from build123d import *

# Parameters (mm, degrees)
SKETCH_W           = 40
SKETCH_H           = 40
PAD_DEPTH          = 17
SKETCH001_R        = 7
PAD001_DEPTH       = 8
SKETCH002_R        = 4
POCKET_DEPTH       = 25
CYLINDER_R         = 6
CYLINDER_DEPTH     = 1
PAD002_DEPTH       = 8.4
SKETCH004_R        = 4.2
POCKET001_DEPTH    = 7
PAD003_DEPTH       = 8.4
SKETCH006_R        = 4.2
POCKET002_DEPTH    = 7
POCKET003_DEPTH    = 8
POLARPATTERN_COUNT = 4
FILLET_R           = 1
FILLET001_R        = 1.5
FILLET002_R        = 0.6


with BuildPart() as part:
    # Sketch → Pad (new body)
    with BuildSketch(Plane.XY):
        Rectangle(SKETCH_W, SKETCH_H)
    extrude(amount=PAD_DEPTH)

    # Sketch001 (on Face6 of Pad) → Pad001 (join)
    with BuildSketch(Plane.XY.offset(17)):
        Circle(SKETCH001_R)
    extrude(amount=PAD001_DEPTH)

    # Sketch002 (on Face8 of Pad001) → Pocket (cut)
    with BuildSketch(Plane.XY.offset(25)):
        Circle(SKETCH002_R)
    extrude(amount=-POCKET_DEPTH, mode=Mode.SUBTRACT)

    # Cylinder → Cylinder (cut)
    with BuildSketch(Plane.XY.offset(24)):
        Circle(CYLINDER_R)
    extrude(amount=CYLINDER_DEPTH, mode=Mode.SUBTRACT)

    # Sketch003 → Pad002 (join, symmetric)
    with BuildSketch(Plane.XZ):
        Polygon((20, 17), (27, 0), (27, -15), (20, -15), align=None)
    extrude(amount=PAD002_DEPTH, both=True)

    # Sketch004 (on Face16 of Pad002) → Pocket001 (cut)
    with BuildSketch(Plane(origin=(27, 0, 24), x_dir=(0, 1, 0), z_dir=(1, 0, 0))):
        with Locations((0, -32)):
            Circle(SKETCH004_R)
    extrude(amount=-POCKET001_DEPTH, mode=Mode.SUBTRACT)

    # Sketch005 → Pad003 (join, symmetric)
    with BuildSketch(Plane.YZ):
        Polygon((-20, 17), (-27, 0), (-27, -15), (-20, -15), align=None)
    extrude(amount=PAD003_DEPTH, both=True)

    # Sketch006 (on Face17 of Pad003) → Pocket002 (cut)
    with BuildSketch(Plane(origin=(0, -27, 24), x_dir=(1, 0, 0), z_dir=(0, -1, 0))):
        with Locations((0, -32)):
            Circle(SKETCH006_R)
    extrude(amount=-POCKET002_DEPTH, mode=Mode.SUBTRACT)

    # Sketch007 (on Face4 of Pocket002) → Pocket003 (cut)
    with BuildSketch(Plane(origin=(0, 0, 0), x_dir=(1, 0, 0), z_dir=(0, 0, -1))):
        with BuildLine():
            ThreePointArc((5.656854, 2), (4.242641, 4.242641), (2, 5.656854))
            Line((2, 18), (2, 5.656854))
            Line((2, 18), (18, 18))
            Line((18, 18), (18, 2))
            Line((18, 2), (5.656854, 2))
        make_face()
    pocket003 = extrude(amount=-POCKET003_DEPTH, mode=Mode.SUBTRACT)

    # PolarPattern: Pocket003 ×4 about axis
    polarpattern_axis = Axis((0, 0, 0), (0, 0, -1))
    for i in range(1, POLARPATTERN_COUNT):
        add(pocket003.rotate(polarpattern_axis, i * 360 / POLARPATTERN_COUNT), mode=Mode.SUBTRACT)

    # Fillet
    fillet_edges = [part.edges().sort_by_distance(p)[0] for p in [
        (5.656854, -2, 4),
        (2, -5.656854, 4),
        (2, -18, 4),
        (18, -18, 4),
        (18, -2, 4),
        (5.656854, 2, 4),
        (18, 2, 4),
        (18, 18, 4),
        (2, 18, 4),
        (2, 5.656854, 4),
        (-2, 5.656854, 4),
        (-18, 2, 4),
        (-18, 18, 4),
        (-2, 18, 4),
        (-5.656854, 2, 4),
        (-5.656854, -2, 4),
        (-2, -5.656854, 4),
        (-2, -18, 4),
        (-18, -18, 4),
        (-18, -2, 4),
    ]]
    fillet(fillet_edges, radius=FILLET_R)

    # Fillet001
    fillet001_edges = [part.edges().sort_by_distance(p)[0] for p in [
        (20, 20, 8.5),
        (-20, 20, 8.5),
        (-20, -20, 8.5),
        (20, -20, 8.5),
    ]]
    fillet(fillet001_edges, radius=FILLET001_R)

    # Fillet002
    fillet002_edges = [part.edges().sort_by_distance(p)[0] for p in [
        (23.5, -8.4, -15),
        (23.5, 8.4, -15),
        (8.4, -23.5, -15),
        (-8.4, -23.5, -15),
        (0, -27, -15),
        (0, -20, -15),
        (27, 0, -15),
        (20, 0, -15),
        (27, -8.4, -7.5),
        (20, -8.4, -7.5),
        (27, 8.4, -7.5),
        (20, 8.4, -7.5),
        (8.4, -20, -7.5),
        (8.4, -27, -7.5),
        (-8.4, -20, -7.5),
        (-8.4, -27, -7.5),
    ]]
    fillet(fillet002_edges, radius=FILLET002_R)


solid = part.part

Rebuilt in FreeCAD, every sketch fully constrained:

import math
import FreeCAD as App
import Part
import Sketcher
from FreeCAD import Vector


def edges_at(feature, points):
    """Names of the edges that pass closest to the given points."""
    edges = feature.Shape.Edges
    near = lambda p: min(range(len(edges)), key=lambda i: edges[i].distToShape(Part.Vertex(*p))[0])
    return sorted({f"Edge{near(p) + 1}" for p in points})

doc = App.newDocument("Part")
body = doc.addObject("PartDesign::Body", "Body")

sketch1 = body.newObject("Sketcher::SketchObject", "Sketch")
sketch1.AttachmentSupport = (doc.getObject("XY_Plane"), [""])
sketch1.MapMode = "FlatFace"
sketch1.addGeometry([
    Part.LineSegment(Vector(-20, 20, 0), Vector(-20, -20, 0)),
    Part.LineSegment(Vector(-20, -20, 0), Vector(20, -20, 0)),
    Part.LineSegment(Vector(20, -20, 0), Vector(20, 20, 0)),
    Part.LineSegment(Vector(20, 20, 0), Vector(-20, 20, 0)),
], False)
sketch1.addConstraint([
    Sketcher.Constraint("Coincident", 0, 2, 1, 1),
    Sketcher.Constraint("Coincident", 1, 2, 2, 1),
    Sketcher.Constraint("Coincident", 2, 2, 3, 1),
    Sketcher.Constraint("Coincident", 3, 2, 0, 1),
    Sketcher.Constraint("Vertical", 0),
    Sketcher.Constraint("Horizontal", 1),
    Sketcher.Constraint("Vertical", 2),
    Sketcher.Constraint("Horizontal", 3),
    Sketcher.Constraint("Symmetric", 0, 2, 2, 2, -1, 1),
    Sketcher.Constraint("Equal", 3, 0),
    Sketcher.Constraint("DistanceX", 1, 1, 1, 2, 40.0),
])
pad1 = body.newObject("PartDesign::Pad", "Pad")
pad1.Profile = sketch1
pad1.Length = 17

sketch2 = body.newObject("Sketcher::SketchObject", "Sketch001")
sketch2.AttachmentSupport = (doc.getObject("XY_Plane"), [""])
sketch2.MapMode = "FlatFace"
sketch2.AttachmentOffset = App.Placement(Vector(0, 0, 17), App.Rotation())
sketch2.addGeometry(Part.Circle(Vector(0, 0, 0), Vector(0, 0, 1), 7), False)
sketch2.addConstraint([
    Sketcher.Constraint("Coincident", 0, 3, -1, 1),
    Sketcher.Constraint("Diameter", 0, 14.0),
])
pad2 = body.newObject("PartDesign::Pad", "Pad001")
pad2.Profile = sketch2
pad2.Length = 8

sketch3 = body.newObject("Sketcher::SketchObject", "Sketch002")
sketch3.AttachmentSupport = (doc.getObject("XY_Plane"), [""])
sketch3.MapMode = "FlatFace"
sketch3.AttachmentOffset = App.Placement(Vector(0, 0, 25), App.Rotation())
sketch3.addGeometry(Part.Circle(Vector(0, 0, 0), Vector(0, 0, 1), 4), False)
sketch3.addConstraint([
    Sketcher.Constraint("Coincident", 0, 3, -1, 1),
    Sketcher.Constraint("Diameter", 0, 8.0),
])
pocket1 = body.newObject("PartDesign::Pocket", "Pocket")
pocket1.Profile = sketch3
pocket1.Length = 25

sketch4 = body.newObject("Sketcher::SketchObject", "Sketch003")
sketch4.AttachmentSupport = (doc.getObject("XY_Plane"), [""])
sketch4.MapMode = "FlatFace"
sketch4.AttachmentOffset = App.Placement(Vector(0, 0, 24), App.Rotation())
sketch4.addGeometry(Part.Circle(Vector(0, 0, 0), Vector(0, 0, 1), 6), False)
sketch4.addConstraint([
    Sketcher.Constraint("Coincident", 0, 3, -1, 1),
    Sketcher.Constraint("Diameter", 0, 12.0),
])
pocket2 = body.newObject("PartDesign::Pocket", "Pocket001")
pocket2.Profile = sketch4
pocket2.Length = 1
pocket2.Reversed = True

sketch5 = body.newObject("Sketcher::SketchObject", "Sketch004")
sketch5.AttachmentSupport = (doc.getObject("XZ_Plane"), [""])
sketch5.MapMode = "FlatFace"
sketch5.addGeometry([
    Part.LineSegment(Vector(27, 0, 0), Vector(20, 17, 0)),
    Part.LineSegment(Vector(20, 17, 0), Vector(20, -15, 0)),
    Part.LineSegment(Vector(20, -15, 0), Vector(27, -15, 0)),
    Part.LineSegment(Vector(27, -15, 0), Vector(27, 0, 0)),
], False)
sketch5.addConstraint([
    Sketcher.Constraint("Coincident", 0, 2, 1, 1),
    Sketcher.Constraint("Coincident", 1, 2, 2, 1),
    Sketcher.Constraint("Coincident", 2, 2, 3, 1),
    Sketcher.Constraint("Coincident", 3, 2, 0, 1),
    Sketcher.Constraint("Vertical", 1),
    Sketcher.Constraint("Horizontal", 2),
    Sketcher.Constraint("Vertical", 3),
    Sketcher.Constraint("PointOnObject", 3, 2, -1),
    Sketcher.Constraint("DistanceX", 2, 1, 2, 2, 7.0),
    Sketcher.Constraint("DistanceY", 1, 2, 1, 1, 32.0),
    Sketcher.Constraint("DistanceY", 3, 1, 3, 2, 15.0),
    Sketcher.Constraint("DistanceX", -1, 1, 0, 2, 20.0),
])
pad3 = body.newObject("PartDesign::Pad", "Pad002")
pad3.Profile = sketch5
pad3.Length = 16.8
pad3.Midplane = True

sketch6 = body.newObject("Sketcher::SketchObject", "Sketch005")
sketch6.AttachmentSupport = (doc.getObject("YZ_Plane"), [""])
sketch6.MapMode = "FlatFace"
sketch6.AttachmentOffset = App.Placement(Vector(0, 0, 27), App.Rotation())
sketch6.addGeometry(Part.Circle(Vector(0, -8, 0), Vector(0, 0, 1), 4.2), False)
sketch6.addConstraint([
    Sketcher.Constraint("PointOnObject", 0, 3, -2),
    Sketcher.Constraint("Diameter", 0, 8.4),
    Sketcher.Constraint("DistanceY", 0, 3, -1, 1, 8.0),
])
pocket3 = body.newObject("PartDesign::Pocket", "Pocket002")
pocket3.Profile = sketch6
pocket3.Length = 7

sketch7 = body.newObject("Sketcher::SketchObject", "Sketch006")
sketch7.AttachmentSupport = (doc.getObject("YZ_Plane"), [""])
sketch7.MapMode = "FlatFace"
sketch7.addGeometry([
    Part.LineSegment(Vector(-20, 17, 0), Vector(-27, 0, 0)),
    Part.LineSegment(Vector(-27, 0, 0), Vector(-27, -15, 0)),
    Part.LineSegment(Vector(-27, -15, 0), Vector(-20, -15, 0)),
    Part.LineSegment(Vector(-20, -15, 0), Vector(-20, 17, 0)),
], False)
sketch7.addConstraint([
    Sketcher.Constraint("Coincident", 0, 2, 1, 1),
    Sketcher.Constraint("Coincident", 1, 2, 2, 1),
    Sketcher.Constraint("Coincident", 2, 2, 3, 1),
    Sketcher.Constraint("Coincident", 3, 2, 0, 1),
    Sketcher.Constraint("Vertical", 1),
    Sketcher.Constraint("Horizontal", 2),
    Sketcher.Constraint("Vertical", 3),
    Sketcher.Constraint("PointOnObject", 0, 2, -1),
    Sketcher.Constraint("DistanceX", 2, 1, 2, 2, 7.0),
    Sketcher.Constraint("DistanceY", 1, 2, 1, 1, 15.0),
    Sketcher.Constraint("DistanceY", 3, 1, 3, 2, 32.0),
    Sketcher.Constraint("DistanceX", 0, 2, -1, 1, 27.0),
])
pad4 = body.newObject("PartDesign::Pad", "Pad003")
pad4.Profile = sketch7
pad4.Length = 16.8
pad4.Midplane = True

sketch8 = body.newObject("Sketcher::SketchObject", "Sketch007")
sketch8.AttachmentSupport = (doc.getObject("XZ_Plane"), [""])
sketch8.MapMode = "FlatFace"
sketch8.AttachmentOffset = App.Placement(Vector(0, 0, 27), App.Rotation())
sketch8.addGeometry(Part.Circle(Vector(0, -8, 0), Vector(0, 0, 1), 4.2), False)
sketch8.addConstraint([
    Sketcher.Constraint("PointOnObject", 0, 3, -2),
    Sketcher.Constraint("Diameter", 0, 8.4),
    Sketcher.Constraint("DistanceY", 0, 3, -1, 1, 8.0),
])
pocket4 = body.newObject("PartDesign::Pocket", "Pocket003")
pocket4.Profile = sketch8
pocket4.Length = 7

sketch9 = body.newObject("Sketcher::SketchObject", "Sketch008")
sketch9.AttachmentSupport = (doc.getObject("XY_Plane"), [""])
sketch9.MapMode = "FlatFace"
sketch9.addGeometry([
    Part.ArcOfCircle(Part.Circle(Vector(0, 0, 0), Vector(0, 0, 1), 6), math.radians(-71), math.radians(-19)),
    Part.LineSegment(Vector(6, -2, 0), Vector(18, -2, 0)),
    Part.LineSegment(Vector(18, -2, 0), Vector(18, -18, 0)),
    Part.LineSegment(Vector(18, -18, 0), Vector(2, -18, 0)),
    Part.LineSegment(Vector(2, -18, 0), Vector(2, -6, 0)),
], False)
sketch9.addConstraint([
    Sketcher.Constraint("Coincident", 0, 2, 1, 1),
    Sketcher.Constraint("Coincident", 1, 2, 2, 1),
    Sketcher.Constraint("Coincident", 2, 2, 3, 1),
    Sketcher.Constraint("Coincident", 3, 2, 4, 1),
    Sketcher.Constraint("Coincident", 4, 2, 0, 1),
    Sketcher.Constraint("Horizontal", 1),
    Sketcher.Constraint("Vertical", 2),
    Sketcher.Constraint("Horizontal", 3),
    Sketcher.Constraint("Vertical", 4),
    Sketcher.Constraint("Coincident", 0, 3, -1, 1),
    Sketcher.Constraint("Equal", 3, 2),
    Sketcher.Constraint("Equal", 1, 4),
    Sketcher.Constraint("DistanceX", 3, 2, 3, 1, 16.0),
    Sketcher.Constraint("DistanceY", 0, 2, -1, 1, 2.0),
    Sketcher.Constraint("Radius", 0, 5.999994),
])
pocket5 = body.newObject("PartDesign::Pocket", "Pocket004")
pocket5.Profile = sketch9
pocket5.Length = 8
pocket5.Reversed = True
doc.recompute()

polarpattern = body.newObject("PartDesign::PolarPattern", "PolarPattern")
polarpattern.Originals = [pocket5]
polarpattern.Axis = (doc.getObject("Z_Axis"), [""])
polarpattern.Angle = 360
polarpattern.Occurrences = 4
body.Tip = polarpattern
doc.recompute()

fillet = body.newObject("PartDesign::Fillet", "Fillet")
fillet.Base = (polarpattern, edges_at(polarpattern, [
    (5.657, -2, 4),
    (2, -5.657, 4),
    (2, -18, 4),
    (18, -18, 4),
    (18, -2, 4),
    (5.657, 2, 4),
    (18, 2, 4),
    (18, 18, 4),
    (2, 18, 4),
    (2, 5.657, 4),
    (-2, 5.657, 4),
    (-18, 2, 4),
    (-18, 18, 4),
    (-2, 18, 4),
    (-5.657, 2, 4),
    (-5.657, -2, 4),
    (-2, -5.657, 4),
    (-2, -18, 4),
    (-18, -18, 4),
    (-18, -2, 4),
]))
fillet.Radius = 1
doc.recompute()

fillet2 = body.newObject("PartDesign::Fillet", "Fillet001")
fillet2.Base = (fillet, edges_at(fillet, [
    (20, 20, 8.5),
    (-20, 20, 8.5),
    (-20, -20, 8.5),
    (20, -20, 8.5),
]))
fillet2.Radius = 1.5
doc.recompute()

fillet3 = body.newObject("PartDesign::Fillet", "Fillet002")
fillet3.Base = (fillet2, edges_at(fillet2, [
    (23.5, -8.4, -15),
    (23.5, 8.4, -15),
    (8.4, -23.5, -15),
    (-8.4, -23.5, -15),
    (0, -27, -15),
    (0, -20, -15),
    (27, 0, -15),
    (20, 0, -15),
    (27, -8.4, -7.5),
    (20, -8.4, -7.5),
    (27, 8.4, -7.5),
    (20, 8.4, -7.5),
    (8.4, -20, -7.5),
    (8.4, -27, -7.5),
    (-8.4, -20, -7.5),
    (-8.4, -27, -7.5),
]))
fillet3.Radius = 0.6

doc.recompute()
